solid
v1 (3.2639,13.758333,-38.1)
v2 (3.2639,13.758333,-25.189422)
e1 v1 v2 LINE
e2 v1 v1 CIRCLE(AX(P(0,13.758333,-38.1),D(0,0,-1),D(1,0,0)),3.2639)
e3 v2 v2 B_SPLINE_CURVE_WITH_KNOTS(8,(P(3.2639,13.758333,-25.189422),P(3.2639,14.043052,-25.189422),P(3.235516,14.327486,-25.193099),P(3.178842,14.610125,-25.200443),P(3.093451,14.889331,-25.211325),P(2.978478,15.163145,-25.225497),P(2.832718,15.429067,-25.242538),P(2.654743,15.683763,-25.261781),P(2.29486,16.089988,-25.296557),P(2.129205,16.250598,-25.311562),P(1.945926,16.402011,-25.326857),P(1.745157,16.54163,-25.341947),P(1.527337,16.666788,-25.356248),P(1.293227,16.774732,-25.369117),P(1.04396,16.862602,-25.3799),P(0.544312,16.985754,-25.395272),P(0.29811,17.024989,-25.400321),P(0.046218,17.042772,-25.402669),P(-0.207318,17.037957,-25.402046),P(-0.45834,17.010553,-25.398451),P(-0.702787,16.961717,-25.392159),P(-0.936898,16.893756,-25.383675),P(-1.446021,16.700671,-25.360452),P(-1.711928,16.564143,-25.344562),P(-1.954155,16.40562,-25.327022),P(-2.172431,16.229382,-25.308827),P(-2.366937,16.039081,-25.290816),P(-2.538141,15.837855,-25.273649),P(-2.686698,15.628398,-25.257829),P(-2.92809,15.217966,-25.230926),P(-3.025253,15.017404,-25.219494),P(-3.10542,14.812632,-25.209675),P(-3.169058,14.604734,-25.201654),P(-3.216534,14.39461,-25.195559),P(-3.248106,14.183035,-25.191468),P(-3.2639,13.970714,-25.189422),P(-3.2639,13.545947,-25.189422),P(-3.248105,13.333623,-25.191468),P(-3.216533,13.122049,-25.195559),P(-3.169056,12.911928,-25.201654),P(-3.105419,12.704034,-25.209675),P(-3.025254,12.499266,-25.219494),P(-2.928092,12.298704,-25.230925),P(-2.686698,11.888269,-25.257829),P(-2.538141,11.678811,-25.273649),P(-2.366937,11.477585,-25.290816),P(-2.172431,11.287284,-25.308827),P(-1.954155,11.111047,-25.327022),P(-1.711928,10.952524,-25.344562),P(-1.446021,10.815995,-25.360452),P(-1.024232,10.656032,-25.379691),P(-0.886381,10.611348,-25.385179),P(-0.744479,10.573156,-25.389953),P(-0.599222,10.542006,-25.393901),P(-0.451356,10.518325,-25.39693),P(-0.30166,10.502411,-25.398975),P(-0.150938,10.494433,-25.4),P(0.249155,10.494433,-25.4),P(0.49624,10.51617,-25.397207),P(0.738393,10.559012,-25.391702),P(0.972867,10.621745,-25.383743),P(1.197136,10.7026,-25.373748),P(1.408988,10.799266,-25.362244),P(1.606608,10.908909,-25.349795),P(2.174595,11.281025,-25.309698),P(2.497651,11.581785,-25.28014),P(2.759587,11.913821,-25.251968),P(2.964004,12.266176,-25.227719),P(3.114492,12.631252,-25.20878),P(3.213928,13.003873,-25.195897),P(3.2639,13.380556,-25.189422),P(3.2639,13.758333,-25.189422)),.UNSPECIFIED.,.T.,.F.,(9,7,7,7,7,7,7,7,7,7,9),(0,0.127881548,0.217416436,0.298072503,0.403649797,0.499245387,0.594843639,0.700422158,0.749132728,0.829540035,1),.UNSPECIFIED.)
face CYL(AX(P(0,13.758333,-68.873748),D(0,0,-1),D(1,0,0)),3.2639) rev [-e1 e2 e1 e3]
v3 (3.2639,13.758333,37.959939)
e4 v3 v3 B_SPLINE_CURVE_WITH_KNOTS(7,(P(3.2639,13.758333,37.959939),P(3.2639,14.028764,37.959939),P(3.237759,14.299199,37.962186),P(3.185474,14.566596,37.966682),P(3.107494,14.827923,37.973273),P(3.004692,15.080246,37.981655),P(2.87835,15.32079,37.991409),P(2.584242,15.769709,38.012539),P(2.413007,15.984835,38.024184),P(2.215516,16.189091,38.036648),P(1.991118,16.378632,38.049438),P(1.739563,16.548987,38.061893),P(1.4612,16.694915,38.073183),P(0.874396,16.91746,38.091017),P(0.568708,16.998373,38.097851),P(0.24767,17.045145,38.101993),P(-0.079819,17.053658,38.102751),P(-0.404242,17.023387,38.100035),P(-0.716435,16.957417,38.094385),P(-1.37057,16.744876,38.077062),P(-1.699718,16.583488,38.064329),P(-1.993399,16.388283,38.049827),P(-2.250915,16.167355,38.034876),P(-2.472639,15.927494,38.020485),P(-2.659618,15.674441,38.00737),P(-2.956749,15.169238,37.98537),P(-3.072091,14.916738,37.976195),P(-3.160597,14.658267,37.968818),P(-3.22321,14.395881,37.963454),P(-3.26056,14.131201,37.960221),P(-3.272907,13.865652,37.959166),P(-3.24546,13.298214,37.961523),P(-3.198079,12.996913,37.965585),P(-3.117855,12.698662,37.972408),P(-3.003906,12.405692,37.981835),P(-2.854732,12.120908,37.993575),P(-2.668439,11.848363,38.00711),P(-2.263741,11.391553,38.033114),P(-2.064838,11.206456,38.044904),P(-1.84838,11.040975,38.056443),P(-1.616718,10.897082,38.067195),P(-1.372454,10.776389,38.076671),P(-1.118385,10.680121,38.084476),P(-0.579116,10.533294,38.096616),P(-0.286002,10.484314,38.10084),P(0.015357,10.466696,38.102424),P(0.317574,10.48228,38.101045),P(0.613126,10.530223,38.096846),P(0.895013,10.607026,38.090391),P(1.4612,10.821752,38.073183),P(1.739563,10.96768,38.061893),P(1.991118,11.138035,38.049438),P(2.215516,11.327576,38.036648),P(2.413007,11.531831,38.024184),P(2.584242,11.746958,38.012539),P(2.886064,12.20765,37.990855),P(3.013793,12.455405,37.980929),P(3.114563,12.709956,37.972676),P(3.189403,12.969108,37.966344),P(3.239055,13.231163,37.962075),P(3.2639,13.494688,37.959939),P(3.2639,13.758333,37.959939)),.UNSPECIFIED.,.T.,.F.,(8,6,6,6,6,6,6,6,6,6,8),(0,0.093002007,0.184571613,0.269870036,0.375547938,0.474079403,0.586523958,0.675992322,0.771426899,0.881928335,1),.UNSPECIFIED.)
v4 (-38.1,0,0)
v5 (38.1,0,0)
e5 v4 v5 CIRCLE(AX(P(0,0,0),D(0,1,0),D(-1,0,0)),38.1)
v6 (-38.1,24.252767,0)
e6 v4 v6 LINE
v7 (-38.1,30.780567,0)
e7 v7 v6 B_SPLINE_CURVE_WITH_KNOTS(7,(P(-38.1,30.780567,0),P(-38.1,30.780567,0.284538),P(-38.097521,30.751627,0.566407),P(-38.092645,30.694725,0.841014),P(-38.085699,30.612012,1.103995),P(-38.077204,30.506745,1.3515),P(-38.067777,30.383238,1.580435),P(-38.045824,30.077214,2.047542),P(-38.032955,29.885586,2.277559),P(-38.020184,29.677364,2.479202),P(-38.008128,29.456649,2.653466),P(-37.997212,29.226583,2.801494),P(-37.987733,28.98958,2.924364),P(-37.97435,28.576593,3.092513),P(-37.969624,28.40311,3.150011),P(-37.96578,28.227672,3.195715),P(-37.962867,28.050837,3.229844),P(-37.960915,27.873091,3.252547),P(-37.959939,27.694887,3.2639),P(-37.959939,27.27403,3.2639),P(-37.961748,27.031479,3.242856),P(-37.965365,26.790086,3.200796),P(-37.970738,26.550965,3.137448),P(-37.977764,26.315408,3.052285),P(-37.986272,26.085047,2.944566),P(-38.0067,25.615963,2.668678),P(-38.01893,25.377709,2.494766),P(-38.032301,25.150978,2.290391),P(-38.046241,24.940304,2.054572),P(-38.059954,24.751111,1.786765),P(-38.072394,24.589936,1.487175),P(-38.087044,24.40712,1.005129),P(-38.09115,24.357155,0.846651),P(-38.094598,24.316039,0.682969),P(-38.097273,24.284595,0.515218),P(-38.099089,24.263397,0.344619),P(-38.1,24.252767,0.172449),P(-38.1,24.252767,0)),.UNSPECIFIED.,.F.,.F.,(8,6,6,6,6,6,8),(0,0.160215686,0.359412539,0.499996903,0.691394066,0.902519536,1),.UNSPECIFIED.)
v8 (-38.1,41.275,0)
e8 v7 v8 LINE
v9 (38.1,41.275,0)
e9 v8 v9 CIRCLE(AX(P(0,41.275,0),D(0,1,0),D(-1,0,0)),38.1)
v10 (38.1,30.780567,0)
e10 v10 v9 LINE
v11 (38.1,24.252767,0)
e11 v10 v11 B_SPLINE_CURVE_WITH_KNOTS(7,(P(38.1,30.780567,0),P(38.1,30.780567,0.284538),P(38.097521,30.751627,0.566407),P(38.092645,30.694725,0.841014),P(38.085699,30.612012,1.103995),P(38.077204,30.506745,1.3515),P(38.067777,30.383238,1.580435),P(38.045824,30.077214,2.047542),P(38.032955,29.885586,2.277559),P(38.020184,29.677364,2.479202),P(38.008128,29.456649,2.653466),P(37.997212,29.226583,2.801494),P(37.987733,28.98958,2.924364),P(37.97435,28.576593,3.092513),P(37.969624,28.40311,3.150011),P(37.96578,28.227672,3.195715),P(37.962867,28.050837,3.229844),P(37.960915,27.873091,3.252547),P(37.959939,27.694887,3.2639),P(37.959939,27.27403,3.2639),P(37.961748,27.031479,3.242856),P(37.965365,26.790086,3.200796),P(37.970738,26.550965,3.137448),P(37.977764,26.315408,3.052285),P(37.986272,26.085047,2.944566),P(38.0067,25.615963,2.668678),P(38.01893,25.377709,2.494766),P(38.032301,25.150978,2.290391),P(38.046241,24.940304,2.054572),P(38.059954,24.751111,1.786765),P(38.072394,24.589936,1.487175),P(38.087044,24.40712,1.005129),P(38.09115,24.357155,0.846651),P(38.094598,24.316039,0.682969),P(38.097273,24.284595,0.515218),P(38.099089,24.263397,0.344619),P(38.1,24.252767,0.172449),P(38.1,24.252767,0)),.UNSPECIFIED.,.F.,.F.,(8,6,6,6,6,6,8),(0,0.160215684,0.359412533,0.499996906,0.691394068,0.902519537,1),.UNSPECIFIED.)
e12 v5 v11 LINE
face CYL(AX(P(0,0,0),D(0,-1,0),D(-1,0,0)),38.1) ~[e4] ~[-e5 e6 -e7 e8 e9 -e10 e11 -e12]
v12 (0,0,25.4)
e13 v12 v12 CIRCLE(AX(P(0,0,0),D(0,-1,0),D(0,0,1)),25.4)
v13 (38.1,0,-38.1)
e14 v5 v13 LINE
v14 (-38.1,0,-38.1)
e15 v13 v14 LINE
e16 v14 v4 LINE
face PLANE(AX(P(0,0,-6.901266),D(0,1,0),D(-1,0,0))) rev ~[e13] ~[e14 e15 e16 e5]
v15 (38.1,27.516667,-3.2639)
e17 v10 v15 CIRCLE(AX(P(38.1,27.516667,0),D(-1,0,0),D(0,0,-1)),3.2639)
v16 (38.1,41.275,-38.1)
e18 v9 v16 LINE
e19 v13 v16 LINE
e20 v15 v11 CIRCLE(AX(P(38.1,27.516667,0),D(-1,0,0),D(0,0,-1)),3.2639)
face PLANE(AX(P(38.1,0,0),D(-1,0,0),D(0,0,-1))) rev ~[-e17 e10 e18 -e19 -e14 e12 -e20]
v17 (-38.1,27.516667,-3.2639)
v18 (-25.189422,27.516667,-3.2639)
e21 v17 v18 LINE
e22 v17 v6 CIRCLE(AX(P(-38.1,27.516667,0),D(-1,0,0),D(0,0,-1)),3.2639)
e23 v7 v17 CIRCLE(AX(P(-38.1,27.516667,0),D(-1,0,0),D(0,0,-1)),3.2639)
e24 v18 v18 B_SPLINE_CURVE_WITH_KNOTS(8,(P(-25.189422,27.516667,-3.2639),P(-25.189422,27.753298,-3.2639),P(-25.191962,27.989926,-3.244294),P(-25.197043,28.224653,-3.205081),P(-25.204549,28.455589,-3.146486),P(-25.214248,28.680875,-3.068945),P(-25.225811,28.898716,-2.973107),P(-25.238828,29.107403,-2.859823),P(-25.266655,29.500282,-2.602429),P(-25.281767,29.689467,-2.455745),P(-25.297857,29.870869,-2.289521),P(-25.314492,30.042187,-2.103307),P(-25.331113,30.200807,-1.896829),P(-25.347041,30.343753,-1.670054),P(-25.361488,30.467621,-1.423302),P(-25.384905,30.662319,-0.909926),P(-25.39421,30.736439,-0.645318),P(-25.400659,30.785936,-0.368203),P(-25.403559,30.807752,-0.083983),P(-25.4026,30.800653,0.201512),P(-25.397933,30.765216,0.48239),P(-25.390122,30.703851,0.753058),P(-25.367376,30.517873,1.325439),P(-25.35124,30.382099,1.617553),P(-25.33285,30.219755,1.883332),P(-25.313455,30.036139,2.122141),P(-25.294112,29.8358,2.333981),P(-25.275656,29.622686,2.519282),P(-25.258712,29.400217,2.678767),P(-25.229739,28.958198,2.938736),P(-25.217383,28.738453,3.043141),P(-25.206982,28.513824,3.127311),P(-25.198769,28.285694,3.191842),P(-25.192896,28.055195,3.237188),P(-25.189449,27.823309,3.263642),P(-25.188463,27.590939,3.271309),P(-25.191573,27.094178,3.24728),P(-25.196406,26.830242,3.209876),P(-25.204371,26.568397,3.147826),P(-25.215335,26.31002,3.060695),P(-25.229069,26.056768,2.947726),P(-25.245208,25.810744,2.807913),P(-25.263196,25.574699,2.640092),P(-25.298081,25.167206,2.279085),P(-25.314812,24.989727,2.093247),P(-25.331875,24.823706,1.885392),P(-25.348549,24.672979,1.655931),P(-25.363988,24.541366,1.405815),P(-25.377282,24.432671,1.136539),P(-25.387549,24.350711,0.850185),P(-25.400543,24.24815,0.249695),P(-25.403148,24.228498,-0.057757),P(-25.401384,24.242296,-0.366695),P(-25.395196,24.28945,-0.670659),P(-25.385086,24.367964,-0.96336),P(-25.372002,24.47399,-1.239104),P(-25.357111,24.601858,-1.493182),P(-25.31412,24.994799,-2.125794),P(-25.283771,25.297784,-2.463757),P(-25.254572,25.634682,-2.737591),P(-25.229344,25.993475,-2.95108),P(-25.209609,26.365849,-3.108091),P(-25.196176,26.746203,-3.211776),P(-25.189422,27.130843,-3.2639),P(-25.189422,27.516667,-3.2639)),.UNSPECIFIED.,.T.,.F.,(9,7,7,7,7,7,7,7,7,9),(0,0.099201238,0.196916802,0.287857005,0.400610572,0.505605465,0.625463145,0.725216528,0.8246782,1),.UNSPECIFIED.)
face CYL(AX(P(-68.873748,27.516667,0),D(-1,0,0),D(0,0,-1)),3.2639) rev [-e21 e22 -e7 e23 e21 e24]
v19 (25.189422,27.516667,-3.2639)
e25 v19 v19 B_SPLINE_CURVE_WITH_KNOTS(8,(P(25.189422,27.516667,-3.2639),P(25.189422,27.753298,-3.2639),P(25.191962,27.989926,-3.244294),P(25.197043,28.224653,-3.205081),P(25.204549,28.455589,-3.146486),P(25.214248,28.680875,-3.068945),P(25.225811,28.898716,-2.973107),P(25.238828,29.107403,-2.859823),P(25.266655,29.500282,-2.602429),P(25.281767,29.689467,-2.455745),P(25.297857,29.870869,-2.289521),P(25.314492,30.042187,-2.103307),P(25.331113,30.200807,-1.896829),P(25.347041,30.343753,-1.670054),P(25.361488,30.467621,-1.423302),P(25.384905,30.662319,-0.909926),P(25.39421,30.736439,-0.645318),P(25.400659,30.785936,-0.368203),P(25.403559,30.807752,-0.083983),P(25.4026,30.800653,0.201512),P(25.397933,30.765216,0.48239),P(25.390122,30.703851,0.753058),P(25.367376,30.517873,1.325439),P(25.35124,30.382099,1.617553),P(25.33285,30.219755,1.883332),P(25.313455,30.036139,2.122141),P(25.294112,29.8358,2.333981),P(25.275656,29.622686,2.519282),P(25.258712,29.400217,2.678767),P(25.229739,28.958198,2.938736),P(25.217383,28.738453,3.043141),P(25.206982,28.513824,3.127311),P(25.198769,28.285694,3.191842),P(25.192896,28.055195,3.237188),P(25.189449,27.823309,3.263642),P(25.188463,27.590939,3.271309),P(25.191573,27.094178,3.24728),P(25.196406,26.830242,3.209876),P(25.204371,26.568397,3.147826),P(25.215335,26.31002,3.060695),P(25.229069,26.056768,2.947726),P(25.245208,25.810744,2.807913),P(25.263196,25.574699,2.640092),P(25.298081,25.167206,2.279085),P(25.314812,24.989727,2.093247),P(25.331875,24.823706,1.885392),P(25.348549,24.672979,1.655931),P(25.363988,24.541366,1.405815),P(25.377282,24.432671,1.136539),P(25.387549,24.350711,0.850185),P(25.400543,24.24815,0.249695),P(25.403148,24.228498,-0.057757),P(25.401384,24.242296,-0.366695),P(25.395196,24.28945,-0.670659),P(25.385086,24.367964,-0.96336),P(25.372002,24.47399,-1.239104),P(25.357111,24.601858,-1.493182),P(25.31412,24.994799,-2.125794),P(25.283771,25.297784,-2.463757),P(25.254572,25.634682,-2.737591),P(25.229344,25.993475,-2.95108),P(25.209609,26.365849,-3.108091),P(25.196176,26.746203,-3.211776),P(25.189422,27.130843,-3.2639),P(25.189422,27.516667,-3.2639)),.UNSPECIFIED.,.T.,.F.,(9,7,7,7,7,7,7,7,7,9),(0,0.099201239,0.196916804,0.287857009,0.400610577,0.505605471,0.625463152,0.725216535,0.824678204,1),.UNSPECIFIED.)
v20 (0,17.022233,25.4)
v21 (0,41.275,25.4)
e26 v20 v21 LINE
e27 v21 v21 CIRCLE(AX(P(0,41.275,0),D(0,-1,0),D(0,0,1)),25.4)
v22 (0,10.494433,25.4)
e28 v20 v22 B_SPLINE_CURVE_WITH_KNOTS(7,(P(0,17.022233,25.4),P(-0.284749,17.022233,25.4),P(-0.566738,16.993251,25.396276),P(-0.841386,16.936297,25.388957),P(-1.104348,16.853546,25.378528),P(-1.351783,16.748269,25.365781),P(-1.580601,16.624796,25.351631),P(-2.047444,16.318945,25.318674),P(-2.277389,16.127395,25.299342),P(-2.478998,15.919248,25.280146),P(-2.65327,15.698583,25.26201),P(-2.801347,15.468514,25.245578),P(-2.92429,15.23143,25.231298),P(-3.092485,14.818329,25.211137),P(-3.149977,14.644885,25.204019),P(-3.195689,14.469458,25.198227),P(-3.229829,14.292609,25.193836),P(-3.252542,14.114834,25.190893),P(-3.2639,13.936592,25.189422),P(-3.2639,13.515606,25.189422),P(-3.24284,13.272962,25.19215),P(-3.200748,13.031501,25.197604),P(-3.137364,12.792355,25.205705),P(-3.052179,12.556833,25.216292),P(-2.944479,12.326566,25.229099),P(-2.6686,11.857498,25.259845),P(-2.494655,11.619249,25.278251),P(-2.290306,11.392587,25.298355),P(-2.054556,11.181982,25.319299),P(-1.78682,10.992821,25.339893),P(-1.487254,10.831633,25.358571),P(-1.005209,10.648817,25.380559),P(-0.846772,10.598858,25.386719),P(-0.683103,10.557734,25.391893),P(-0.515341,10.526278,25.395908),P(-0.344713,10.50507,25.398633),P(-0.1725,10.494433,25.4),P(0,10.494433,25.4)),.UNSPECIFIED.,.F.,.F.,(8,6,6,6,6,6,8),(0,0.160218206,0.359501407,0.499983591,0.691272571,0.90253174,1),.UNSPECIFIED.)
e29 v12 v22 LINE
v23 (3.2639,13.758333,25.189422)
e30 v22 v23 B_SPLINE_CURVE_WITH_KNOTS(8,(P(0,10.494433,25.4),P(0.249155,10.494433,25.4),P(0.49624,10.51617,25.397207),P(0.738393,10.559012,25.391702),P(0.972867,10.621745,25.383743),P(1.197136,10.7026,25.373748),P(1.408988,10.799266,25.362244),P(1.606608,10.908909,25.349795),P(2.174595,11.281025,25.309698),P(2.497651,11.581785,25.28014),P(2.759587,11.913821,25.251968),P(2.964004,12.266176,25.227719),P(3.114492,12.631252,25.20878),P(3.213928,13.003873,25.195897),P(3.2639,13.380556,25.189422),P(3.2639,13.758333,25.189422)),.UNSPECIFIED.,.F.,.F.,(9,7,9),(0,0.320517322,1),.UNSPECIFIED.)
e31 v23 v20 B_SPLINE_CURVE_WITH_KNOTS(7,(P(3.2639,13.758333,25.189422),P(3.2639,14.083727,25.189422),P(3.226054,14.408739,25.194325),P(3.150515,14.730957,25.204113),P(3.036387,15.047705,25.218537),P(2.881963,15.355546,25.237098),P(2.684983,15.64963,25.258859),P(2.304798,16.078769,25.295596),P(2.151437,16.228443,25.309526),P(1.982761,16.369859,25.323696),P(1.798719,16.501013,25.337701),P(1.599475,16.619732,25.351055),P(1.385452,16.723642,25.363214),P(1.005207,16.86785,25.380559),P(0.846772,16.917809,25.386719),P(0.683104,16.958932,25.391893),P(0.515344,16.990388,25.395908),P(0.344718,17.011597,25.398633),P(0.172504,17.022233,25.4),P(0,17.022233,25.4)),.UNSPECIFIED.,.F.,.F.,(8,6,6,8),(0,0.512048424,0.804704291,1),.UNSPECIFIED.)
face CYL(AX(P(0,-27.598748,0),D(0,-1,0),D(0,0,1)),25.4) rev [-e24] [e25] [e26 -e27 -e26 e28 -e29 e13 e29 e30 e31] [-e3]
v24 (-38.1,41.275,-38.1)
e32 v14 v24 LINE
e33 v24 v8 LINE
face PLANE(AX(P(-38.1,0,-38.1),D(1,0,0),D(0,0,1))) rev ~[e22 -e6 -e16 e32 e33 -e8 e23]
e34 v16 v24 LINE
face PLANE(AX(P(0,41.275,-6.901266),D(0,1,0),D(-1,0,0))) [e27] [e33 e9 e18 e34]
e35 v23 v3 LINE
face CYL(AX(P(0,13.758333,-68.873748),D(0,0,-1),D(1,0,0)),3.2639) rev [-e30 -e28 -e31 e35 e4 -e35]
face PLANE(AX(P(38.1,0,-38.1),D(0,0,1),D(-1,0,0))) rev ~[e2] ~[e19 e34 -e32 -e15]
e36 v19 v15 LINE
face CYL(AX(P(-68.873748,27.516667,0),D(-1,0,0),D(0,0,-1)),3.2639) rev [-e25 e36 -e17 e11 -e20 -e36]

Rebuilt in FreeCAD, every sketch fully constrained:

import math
import FreeCAD as App
import Part
import Sketcher

V = App.Vector
Q = App.Units.Quantity

doc = App.newDocument("Part")
body = doc.addObject("PartDesign::Body", "Body")

sketch1 = body.newObject("Sketcher::SketchObject", "Sketch")
sketch1.AttachmentSupport = (doc.getObject("XZ_Plane"), [""])
sketch1.MapMode = "FlatFace"
sketch1.addGeometry([
    Part.LineSegment(V(38, 0, 0), V(38, -38, 0)),
    Part.LineSegment(V(38, -38, 0), V(-38, -38, 0)),
    Part.LineSegment(V(-38, -38, 0), V(-38, 0, 0)),
    Part.ArcOfCircle(Part.Circle(V(0, 0, 0), V(0, 0, 1), 38), math.radians(0), math.radians(180)),
], False)
sketch1.addConstraint([
    Sketcher.Constraint("Coincident", 0, 2, 1, 1),
    Sketcher.Constraint("Coincident", 1, 2, 2, 1),
    Sketcher.Constraint("Tangent", 2, 2, 3, 2),
    Sketcher.Constraint("Tangent", 3, 1, 0, 1),
    Sketcher.Constraint("Vertical", 0),
    Sketcher.Constraint("Horizontal", 1),
    Sketcher.Constraint("Vertical", 2),
    Sketcher.Constraint("Coincident", 3, 3, -1, 1),
    Sketcher.Constraint("Radius", 3, Q("1.5 in")),
    Sketcher.Constraint("DistanceY", 0, 2, 0, 1, Q("1.5 in")),
])
pad1 = body.newObject("PartDesign::Pad", "Pad")
pad1.Profile = sketch1
pad1.Length = Q("1.625 in")
pad1.Reversed = True

sketch2 = body.newObject("Sketcher::SketchObject", "Sketch001")
sketch2.AttachmentSupport = (doc.getObject("XZ_Plane"), [""])
sketch2.MapMode = "FlatFace"
sketch2.AttachmentOffset = App.Placement(V(0, 0, -1.625 * 25.4), App.Rotation())
sketch2.addGeometry(Part.Circle(V(0, 0, 0), V(0, 0, 1), 25), False)
sketch2.addConstraint([
    Sketcher.Constraint("Coincident", 0, 3, -1, 1),
    Sketcher.Constraint("Diameter", 0, Q("2 in")),
])
pocket1 = body.newObject("PartDesign::Pocket", "Pocket")
pocket1.Profile = sketch2
pocket1.Type = "ThroughAll"
pocket1.Midplane = True

sketch3 = body.newObject("Sketcher::SketchObject", "Sketch002")
sketch3.AttachmentSupport = (doc.getObject("XY_Plane"), [""])
sketch3.MapMode = "FlatFace"
sketch3.addGeometry(Part.Circle(V(0, 13.8, 0), V(0, 0, 1), 3.3), False)
sketch3.addConstraint([
    Sketcher.Constraint("PointOnObject", 0, 3, -2),
    Sketcher.Constraint("Diameter", 0, Q("0.257 in")),
    Sketcher.Constraint("DistanceY", -1, 1, 0, 3, 13.758333),
])
pocket2 = body.newObject("PartDesign::Pocket", "Pocket001")
pocket2.Profile = sketch3
pocket2.Type = "ThroughAll"
pocket2.Midplane = True

sketch4 = body.newObject("Sketcher::SketchObject", "Sketch003")
sketch4.AttachmentSupport = (doc.getObject("YZ_Plane"), [""])
sketch4.MapMode = "FlatFace"
sketch4.addGeometry(Part.Circle(V(27.5, 0, 0), V(0, 0, 1), 3.3), False)
sketch4.addConstraint([
    Sketcher.Constraint("PointOnObject", 0, 3, -1),
    Sketcher.Constraint("Diameter", 0, Q("0.257 in")),
    Sketcher.Constraint("DistanceX", -1, 1, 0, 3, 27.516667),
])
pocket3 = body.newObject("PartDesign::Pocket", "Pocket002")
pocket3.Profile = sketch4
pocket3.Type = "ThroughAll"
pocket3.Midplane = True

doc.recompute()
